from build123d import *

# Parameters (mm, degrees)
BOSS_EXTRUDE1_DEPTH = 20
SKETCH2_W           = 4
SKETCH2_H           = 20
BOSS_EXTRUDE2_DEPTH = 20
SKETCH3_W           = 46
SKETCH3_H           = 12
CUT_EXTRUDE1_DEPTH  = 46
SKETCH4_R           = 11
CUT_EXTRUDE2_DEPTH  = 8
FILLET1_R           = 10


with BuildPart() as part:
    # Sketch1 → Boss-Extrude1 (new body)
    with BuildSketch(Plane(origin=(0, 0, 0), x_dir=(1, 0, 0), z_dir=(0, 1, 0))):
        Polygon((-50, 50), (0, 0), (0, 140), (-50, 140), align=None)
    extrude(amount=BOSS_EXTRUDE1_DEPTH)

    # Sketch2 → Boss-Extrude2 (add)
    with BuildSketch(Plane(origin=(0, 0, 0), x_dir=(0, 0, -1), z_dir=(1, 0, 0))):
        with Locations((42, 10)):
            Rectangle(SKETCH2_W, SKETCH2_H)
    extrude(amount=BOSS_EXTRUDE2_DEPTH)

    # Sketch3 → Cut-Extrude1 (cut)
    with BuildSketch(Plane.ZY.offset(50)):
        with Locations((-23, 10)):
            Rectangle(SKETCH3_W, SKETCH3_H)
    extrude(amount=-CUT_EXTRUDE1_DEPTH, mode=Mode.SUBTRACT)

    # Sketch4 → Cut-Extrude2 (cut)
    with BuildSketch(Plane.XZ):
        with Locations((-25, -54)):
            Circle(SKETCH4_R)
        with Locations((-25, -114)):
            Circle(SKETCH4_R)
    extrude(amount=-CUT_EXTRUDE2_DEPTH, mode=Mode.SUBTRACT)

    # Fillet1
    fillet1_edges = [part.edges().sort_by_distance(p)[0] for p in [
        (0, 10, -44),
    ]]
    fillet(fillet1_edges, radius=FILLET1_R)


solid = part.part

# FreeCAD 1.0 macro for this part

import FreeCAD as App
import Part
import Sketcher
Q = App.Units.Quantity


def edges_at(feature, points):
    """Names of the edges that pass closest to the given points."""
    edges = feature.Shape.Edges
    near = lambda p: min(range(len(edges)), key=lambda i: edges[i].distToShape(Part.Vertex(*p))[0])
    return sorted({f"Edge{near(p) + 1}" for p in points})


def add_polygon(sketch, points):
    """Adds a closed chain of lines whose ends are joined by coincident constraints."""
    first, n = sketch.GeometryCount, len(points)
    for a, b in zip(points, points[1:] + points[:1]):
        sketch.addGeometry(Part.LineSegment(App.Vector(*a, 0), App.Vector(*b, 0)), False)
    for i in range(n):
        sketch.addConstraint(Sketcher.Constraint("Coincident", first + i, 2, first + (i + 1) % n, 1))

doc = App.newDocument("Part")
params = doc.addObject("Spreadsheet::Sheet", "Params")
for row, (alias, value) in enumerate([
    ("sketch1_width", "50 mm"),
    ("sketch1_height", "140 mm"),
    ("sketch1_height2", "90 mm"),
    ("pad1_length", "20 mm"),
    ("sketch2_width", "20 mm"),
    ("sketch2_height", "4 mm"),
    ("pad2_length", "20 mm"),
    ("sketch3_width", "12 mm"),
    ("sketch3_height", "46 mm"),
    ("pocket1_length", "46 mm"),
    ("sketch4_diameter", "22 mm"),
    ("pocket2_length", "8 mm"),
    ("fillet_radius", "10 mm"),
], start=1):
    params.set(f"A{row}", alias)
    params.set(f"B{row}", "=" + value)
    params.setAlias(f"B{row}", alias)

body = doc.addObject("PartDesign::Body", "Body")

# Sketch on XZ plane
sketch1 = doc.addObject("Sketcher::SketchObject", "Sketch")
body.addObject(sketch1)
sketch1.AttachmentSupport = (doc.XZ_Plane, [""])
sketch1.MapMode = "FlatFace"
add_polygon(sketch1, [(-50, -50), (0, 0), (0, -140), (-50, -140)])  # lines 0-3
sketch1.addConstraint([
    Sketcher.Constraint("Vertical", 1),
    Sketcher.Constraint("Horizontal", 2),
    Sketcher.Constraint("Vertical", 3),
    Sketcher.Constraint("Coincident", 0, 2, -1, 1),
    Sketcher.Constraint("DistanceX", 2, 2, 2, 1, Q("50 mm")),
    Sketcher.Constraint("DistanceY", 1, 2, 1, 1, Q("140 mm")),
    Sketcher.Constraint("DistanceY", 3, 1, 3, 2, Q("90 mm")),
])
sketch1.setExpression("Constraints[8]", "Params.sketch1_width")
sketch1.setExpression("Constraints[9]", "Params.sketch1_height")
sketch1.setExpression("Constraints[10]", "Params.sketch1_height2")
pad1 = doc.addObject("PartDesign::Pad", "Pad")
body.addObject(pad1)
pad1.Profile = sketch1
pad1.setExpression("Length", "Params.pad1_length")
pad1.Reversed = True

# Sketch on YZ plane
sketch2 = doc.addObject("Sketcher::SketchObject", "Sketch001")
body.addObject(sketch2)
sketch2.AttachmentSupport = (doc.YZ_Plane, [""])
sketch2.MapMode = "FlatFace"
add_polygon(sketch2, [(20, -40), (0, -40), (0, -44), (20, -44)])  # lines 0-3
sketch2.addConstraint([
    Sketcher.Constraint("Horizontal", 0),
    Sketcher.Constraint("Vertical", 1),
    Sketcher.Constraint("Horizontal", 2),
    Sketcher.Constraint("Vertical", 3),
    Sketcher.Constraint("PointOnObject", 0, 2, -2),
    Sketcher.Constraint("DistanceX", 0, 2, 0, 1, Q("20 mm")),
    Sketcher.Constraint("DistanceY", 1, 2, 1, 1, Q("4 mm")),
    Sketcher.Constraint("DistanceY", 0, 2, -1, 1, Q("40 mm")),
])
sketch2.setExpression("Constraints[9]", "Params.sketch2_width")
sketch2.setExpression("Constraints[10]", "Params.sketch2_height")
pad2 = doc.addObject("PartDesign::Pad", "Pad001")
body.addObject(pad2)
pad2.Profile = sketch2
pad2.setExpression("Length", "Params.pad2_length")

# Sketch on YZ plane
sketch3 = doc.addObject("Sketcher::SketchObject", "Sketch002")
body.addObject(sketch3)
sketch3.AttachmentSupport = (doc.YZ_Plane, [""])
sketch3.MapMode = "FlatFace"
sketch3.AttachmentOffset = App.Placement(App.Vector(0, 0, -50), App.Rotation())
add_polygon(sketch3, [(16, -46), (4, -46), (4, 0), (16, 0)])  # lines 0-3
sketch3.addConstraint([
    Sketcher.Constraint("Horizontal", 0),
    Sketcher.Constraint("Vertical", 1),
    Sketcher.Constraint("Horizontal", 2),
    Sketcher.Constraint("Vertical", 3),
    Sketcher.Constraint("PointOnObject", 1, 2, -1),
    Sketcher.Constraint("DistanceX", 0, 2, 0, 1, Q("12 mm")),
    Sketcher.Constraint("DistanceY", 1, 1, 1, 2, Q("46 mm")),
    Sketcher.Constraint("DistanceX", -1, 1, 0, 2, Q("4 mm")),
])
sketch3.setExpression("Constraints[9]", "Params.sketch3_width")
sketch3.setExpression("Constraints[10]", "Params.sketch3_height")
pocket1 = doc.addObject("PartDesign::Pocket", "Pocket")
body.addObject(pocket1)
pocket1.Profile = sketch3
pocket1.setExpression("Length", "Params.pocket1_length")
pocket1.Reversed = True

# Sketch on XZ plane
sketch4 = doc.addObject("Sketcher::SketchObject", "Sketch003")
body.addObject(sketch4)
sketch4.AttachmentSupport = (doc.XZ_Plane, [""])
sketch4.MapMode = "FlatFace"
sketch4.addGeometry([
    Part.Circle(App.Vector(-25, -54, 0), App.Vector(0, 0, 1), 11),
    Part.Circle(App.Vector(-25, -114, 0), App.Vector(0, 0, 1), 11),
], False)
sketch4.addConstraint([
    Sketcher.Constraint("Equal", 0, 1),
    Sketcher.Constraint("Vertical", 0, 3, 1, 3),
    Sketcher.Constraint("Diameter", 0, Q("22 mm")),
    Sketcher.Constraint("DistanceX", 0, 3, -1, 1, Q("25 mm")),
    Sketcher.Constraint("DistanceY", 0, 3, -1, 1, Q("54 mm")),
    Sketcher.Constraint("DistanceY", 1, 3, -1, 1, Q("114 mm")),
])
sketch4.setExpression("Constraints[2]", "Params.sketch4_diameter")
pocket2 = doc.addObject("PartDesign::Pocket", "Pocket001")
body.addObject(pocket2)
pocket2.Profile = sketch4
pocket2.setExpression("Length", "Params.pocket2_length")
doc.recompute()

fillet = doc.addObject("PartDesign::Fillet", "Fillet")
body.addObject(fillet)
fillet.Base = (pocket2, edges_at(pocket2, [(0, 10, -44)]))
fillet.setExpression("Radius", "Params.fillet_radius")

doc.recompute()
